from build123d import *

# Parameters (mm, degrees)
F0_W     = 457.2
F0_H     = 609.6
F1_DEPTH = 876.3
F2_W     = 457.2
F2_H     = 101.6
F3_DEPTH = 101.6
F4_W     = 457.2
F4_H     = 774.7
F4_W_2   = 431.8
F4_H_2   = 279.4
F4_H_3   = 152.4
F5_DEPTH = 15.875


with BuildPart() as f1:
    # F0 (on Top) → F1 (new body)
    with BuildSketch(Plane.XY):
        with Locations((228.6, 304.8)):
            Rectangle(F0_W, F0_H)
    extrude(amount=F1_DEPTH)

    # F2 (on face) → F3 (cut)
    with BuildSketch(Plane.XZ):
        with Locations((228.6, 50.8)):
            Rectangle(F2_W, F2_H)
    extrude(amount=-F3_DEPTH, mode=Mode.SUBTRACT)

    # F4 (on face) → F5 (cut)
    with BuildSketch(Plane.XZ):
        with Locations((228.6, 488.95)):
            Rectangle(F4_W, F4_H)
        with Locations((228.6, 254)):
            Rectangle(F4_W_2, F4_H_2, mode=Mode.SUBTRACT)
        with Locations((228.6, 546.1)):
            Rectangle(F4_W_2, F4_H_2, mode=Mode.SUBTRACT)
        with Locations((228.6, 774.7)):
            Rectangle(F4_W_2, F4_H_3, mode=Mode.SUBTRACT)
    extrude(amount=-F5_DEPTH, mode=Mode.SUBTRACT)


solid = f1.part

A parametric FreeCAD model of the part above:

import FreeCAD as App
import Part
import Sketcher
Q = App.Units.Quantity


def add_polygon(sketch, points):
    """Adds a closed chain of lines whose ends are joined by coincident constraints."""
    first, n = sketch.GeometryCount, len(points)
    for a, b in zip(points, points[1:] + points[:1]):
        sketch.addGeometry(Part.LineSegment(App.Vector(*a, 0), App.Vector(*b, 0)), False)
    for i in range(n):
        sketch.addConstraint(Sketcher.Constraint("Coincident", first + i, 2, first + (i + 1) % n, 1))

doc = App.newDocument("Part")
params = doc.addObject("Spreadsheet::Sheet", "Params")
for row, (alias, value) in enumerate([
    ("sketch1_width", "18 in"),
    ("sketch1_height", "24 in"),
    ("pad1_length", "34.5 in"),
    ("sketch2_width", "18 in"),
    ("sketch2_height", "4 in"),
    ("pocket1_length", "4 in"),
    ("sketch3_width", "18 in"),
    ("sketch3_width2", "17 in"),
    ("sketch3_height", "11 in"),
    ("sketch3_height2", "6 in"),
    ("sketch3_height3", "30.5 in"),
    ("pocket2_length", "0.625 in"),
], start=1):
    params.set(f"A{row}", alias)
    params.set(f"B{row}", "=" + value)
    params.setAlias(f"B{row}", alias)

body = doc.addObject("PartDesign::Body", "Body")

# Sketch on XY plane
sketch1 = body.newObject("Sketcher::SketchObject", "Sketch")
sketch1.AttachmentSupport = (doc.getObject("XY_Plane"), [""])
sketch1.MapMode = "FlatFace"
add_polygon(sketch1, [(0, 610), (0, 0), (457, 0), (457, 610)])  # lines 0-3
sketch1.addConstraint(Sketcher.Constraint("Vertical", 0))
sketch1.addConstraint(Sketcher.Constraint("Horizontal", 1))
sketch1.addConstraint(Sketcher.Constraint("Vertical", 2))
sketch1.addConstraint(Sketcher.Constraint("Horizontal", 3))
sketch1.addConstraint(Sketcher.Constraint("Coincident", 0, 2, -1, 1))
sketch1.addConstraint(Sketcher.Constraint("DistanceX", 1, 1, 1, 2, Q("18 in")))
sketch1.addConstraint(Sketcher.Constraint("DistanceY", 0, 2, 0, 1, Q("24 in")))
sketch1.setExpression("Constraints[9]", "Params.sketch1_width")
sketch1.setExpression("Constraints[10]", "Params.sketch1_height")
pad1 = body.newObject("PartDesign::Pad", "Pad")
pad1.Profile = sketch1
pad1.setExpression("Length", "Params.pad1_length")

# Sketch on XZ plane
sketch2 = body.newObject("Sketcher::SketchObject", "Sketch001")
sketch2.AttachmentSupport = (doc.getObject("XZ_Plane"), [""])
sketch2.MapMode = "FlatFace"
add_polygon(sketch2, [(0, 102), (0, 0), (457, 0), (457, 102)])  # lines 0-3
sketch2.addConstraint(Sketcher.Constraint("Vertical", 0))
sketch2.addConstraint(Sketcher.Constraint("Horizontal", 1))
sketch2.addConstraint(Sketcher.Constraint("Vertical", 2))
sketch2.addConstraint(Sketcher.Constraint("Horizontal", 3))
sketch2.addConstraint(Sketcher.Constraint("Coincident", 0, 2, -1, 1))
sketch2.addConstraint(Sketcher.Constraint("DistanceX", 1, 1, 1, 2, Q("18 in")))
sketch2.addConstraint(Sketcher.Constraint("DistanceY", 0, 2, 0, 1, Q("4 in")))
sketch2.setExpression("Constraints[9]", "Params.sketch2_width")
sketch2.setExpression("Constraints[10]", "Params.sketch2_height")
pocket1 = body.newObject("PartDesign::Pocket", "Pocket")
pocket1.Profile = sketch2
pocket1.setExpression("Length", "Params.pocket1_length")

# Sketch on XZ plane
sketch3 = body.newObject("Sketcher::SketchObject", "Sketch002")
sketch3.AttachmentSupport = (doc.getObject("XZ_Plane"), [""])
sketch3.MapMode = "FlatFace"
add_polygon(sketch3, [(0, 876), (0, 102), (457, 102), (457, 876)])  # lines 0-3
add_polygon(sketch3, [(444, 114), (13, 114), (13, 394), (444, 394)])  # lines 4-7
add_polygon(sketch3, [(444, 406), (13, 406), (13, 686), (444, 686)])  # lines 8-11
add_polygon(sketch3, [(444, 698), (13, 698), (13, 851), (444, 851)])  # lines 12-15
sketch3.addConstraint(Sketcher.Constraint("Vertical", 0))
sketch3.addConstraint(Sketcher.Constraint("Horizontal", 1))
sketch3.addConstraint(Sketcher.Constraint("Vertical", 2))
sketch3.addConstraint(Sketcher.Constraint("Horizontal", 3))
sketch3.addConstraint(Sketcher.Constraint("Horizontal", 4))
sketch3.addConstraint(Sketcher.Constraint("Vertical", 5))
sketch3.addConstraint(Sketcher.Constraint("Horizontal", 6))
sketch3.addConstraint(Sketcher.Constraint("Vertical", 7))
sketch3.addConstraint(Sketcher.Constraint("Horizontal", 8))
sketch3.addConstraint(Sketcher.Constraint("Vertical", 9))
sketch3.addConstraint(Sketcher.Constraint("Horizontal", 10))
sketch3.addConstraint(Sketcher.Constraint("Vertical", 11))
sketch3.addConstraint(Sketcher.Constraint("Horizontal", 12))
sketch3.addConstraint(Sketcher.Constraint("Vertical", 13))
sketch3.addConstraint(Sketcher.Constraint("Horizontal", 14))
sketch3.addConstraint(Sketcher.Constraint("Vertical", 15))
sketch3.addConstraint(Sketcher.Constraint("PointOnObject", 0, 2, -2))
sketch3.addConstraint(Sketcher.Constraint("Vertical", 5, 2, 8, 2))
sketch3.addConstraint(Sketcher.Constraint("Vertical", 7, 2, 10, 2))
sketch3.addConstraint(Sketcher.Constraint("Vertical", 9, 2, 12, 2))
sketch3.addConstraint(Sketcher.Constraint("Vertical", 11, 2, 14, 2))
sketch3.addConstraint(Sketcher.Constraint("Equal", 7, 9))
sketch3.addConstraint(Sketcher.Constraint("DistanceX", 1, 1, 1, 2, Q("18 in")))
sketch3.addConstraint(Sketcher.Constraint("DistanceX", 4, 2, 4, 1, Q("17 in")))
sketch3.addConstraint(Sketcher.Constraint("DistanceY", 5, 1, 5, 2, Q("11 in")))
sketch3.addConstraint(Sketcher.Constraint("DistanceY", 13, 1, 13, 2, Q("6 in")))
sketch3.addConstraint(Sketcher.Constraint("DistanceY", 0, 2, 0, 1, Q("30.5 in")))
sketch3.addConstraint(Sketcher.Constraint("DistanceY", -1, 1, 0, 2, Q("4 in")))
sketch3.addConstraint(Sketcher.Constraint("DistanceY", -1, 1, 8, 2, Q("16 in")))
sketch3.addConstraint(Sketcher.Constraint("DistanceY", 4, 2, 3, 2, Q("30 in")))
sketch3.addConstraint(Sketcher.Constraint("DistanceY", 12, 2, 3, 2, Q("7 in")))
sketch3.addConstraint(Sketcher.Constraint("DistanceX", -1, 1, 4, 2, Q("0.5 in")))
sketch3.setExpression("Constraints[38]", "Params.sketch3_width")
sketch3.setExpression("Constraints[39]", "Params.sketch3_width2")
sketch3.setExpression("Constraints[40]", "Params.sketch3_height")
sketch3.setExpression("Constraints[41]", "Params.sketch3_height2")
sketch3.setExpression("Constraints[42]", "Params.sketch3_height3")
pocket2 = body.newObject("PartDesign::Pocket", "Pocket001")
pocket2.Profile = sketch3
pocket2.setExpression("Length", "Params.pocket2_length")

doc.recompute()
